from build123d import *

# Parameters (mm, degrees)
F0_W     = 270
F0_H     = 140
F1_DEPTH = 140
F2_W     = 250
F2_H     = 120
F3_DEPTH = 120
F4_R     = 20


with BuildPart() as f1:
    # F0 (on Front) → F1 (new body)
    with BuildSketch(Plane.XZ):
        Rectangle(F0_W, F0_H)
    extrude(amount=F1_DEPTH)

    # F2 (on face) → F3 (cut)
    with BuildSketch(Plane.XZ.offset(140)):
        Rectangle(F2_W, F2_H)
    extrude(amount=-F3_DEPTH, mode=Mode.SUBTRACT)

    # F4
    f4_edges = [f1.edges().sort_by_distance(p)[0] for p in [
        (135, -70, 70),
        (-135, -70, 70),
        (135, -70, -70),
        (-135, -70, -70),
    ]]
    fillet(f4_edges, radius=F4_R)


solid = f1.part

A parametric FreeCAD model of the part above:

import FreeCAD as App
import Part
import Sketcher

V = App.Vector


def edges_at(feature, points):
    """Names of the edges that pass closest to the given points."""
    edges = feature.Shape.Edges
    near = lambda p: min(range(len(edges)), key=lambda i: edges[i].distToShape(Part.Vertex(*p))[0])
    return sorted({f"Edge{near(p) + 1}" for p in points})

doc = App.newDocument("Part")
params = doc.addObject("Spreadsheet::Sheet", "Params")
for row, (alias, value) in enumerate([
    ("sketch1_width", "270 mm"),
    ("sketch1_height", "140 mm"),
    ("pad1_length", "140 mm"),
    ("sketch2_width", "250 mm"),
    ("sketch2_height", "120 mm"),
    ("pocket1_length", "120 mm"),
    ("fillet_radius", "20 mm"),
], start=1):
    params.set(f"A{row}", alias)
    params.set(f"B{row}", "=" + value)
    params.setAlias(f"B{row}", alias)

body = doc.addObject("PartDesign::Body", "Body")

# Sketch on XZ plane
sketch1 = doc.addObject("Sketcher::SketchObject", "Sketch")
body.addObject(sketch1)
sketch1.AttachmentSupport = (doc.XZ_Plane, [""])
sketch1.MapMode = "FlatFace"
sketch1.addGeometry(Part.LineSegment(V(-135, 70, 0), V(-135, -70, 0)), False)
sketch1.addGeometry(Part.LineSegment(V(-135, -70, 0), V(135, -70, 0)), False)
sketch1.addGeometry(Part.LineSegment(V(135, -70, 0), V(135, 70, 0)), False)
sketch1.addGeometry(Part.LineSegment(V(135, 70, 0), V(-135, 70, 0)), False)
sketch1.addConstraint(Sketcher.Constraint("Coincident", 0, 2, 1, 1))
sketch1.addConstraint(Sketcher.Constraint("Coincident", 1, 2, 2, 1))
sketch1.addConstraint(Sketcher.Constraint("Coincident", 2, 2, 3, 1))
sketch1.addConstraint(Sketcher.Constraint("Coincident", 3, 2, 0, 1))
sketch1.addConstraint(Sketcher.Constraint("Vertical", 0))
sketch1.addConstraint(Sketcher.Constraint("Horizontal", 1))
sketch1.addConstraint(Sketcher.Constraint("Vertical", 2))
sketch1.addConstraint(Sketcher.Constraint("Horizontal", 3))
sketch1.addConstraint(Sketcher.Constraint("Symmetric", 0, 2, 2, 2, -1, 1))
sketch1.addConstraint(Sketcher.Constraint("DistanceX", 1, 1, 1, 2, 270.0))
sketch1.addConstraint(Sketcher.Constraint("DistanceY", 0, 2, 0, 1, 140.0))
sketch1.setExpression("Constraints[9]", "Params.sketch1_width")
sketch1.setExpression("Constraints[10]", "Params.sketch1_height")
pad1 = doc.addObject("PartDesign::Pad", "Pad")
body.addObject(pad1)
pad1.Profile = sketch1
pad1.setExpression("Length", "Params.pad1_length")

# Sketch on XZ plane
sketch2 = doc.addObject("Sketcher::SketchObject", "Sketch001")
body.addObject(sketch2)
sketch2.AttachmentSupport = (doc.XZ_Plane, [""])
sketch2.MapMode = "FlatFace"
sketch2.AttachmentOffset = App.Placement(V(0, 0, 140), App.Rotation())
sketch2.addGeometry(Part.LineSegment(V(-125, 60, 0), V(-125, -60, 0)), False)
sketch2.addGeometry(Part.LineSegment(V(-125, -60, 0), V(125, -60, 0)), False)
sketch2.addGeometry(Part.LineSegment(V(125, -60, 0), V(125, 60, 0)), False)
sketch2.addGeometry(Part.LineSegment(V(125, 60, 0), V(-125, 60, 0)), False)
sketch2.addConstraint(Sketcher.Constraint("Coincident", 0, 2, 1, 1))
sketch2.addConstraint(Sketcher.Constraint("Coincident", 1, 2, 2, 1))
sketch2.addConstraint(Sketcher.Constraint("Coincident", 2, 2, 3, 1))
sketch2.addConstraint(Sketcher.Constraint("Coincident", 3, 2, 0, 1))
sketch2.addConstraint(Sketcher.Constraint("Vertical", 0))
sketch2.addConstraint(Sketcher.Constraint("Horizontal", 1))
sketch2.addConstraint(Sketcher.Constraint("Vertical", 2))
sketch2.addConstraint(Sketcher.Constraint("Horizontal", 3))
sketch2.addConstraint(Sketcher.Constraint("Symmetric", 0, 2, 2, 2, -1, 1))
sketch2.addConstraint(Sketcher.Constraint("DistanceX", 1, 1, 1, 2, 250.0))
sketch2.addConstraint(Sketcher.Constraint("DistanceY", 0, 2, 0, 1, 120.0))
sketch2.setExpression("Constraints[9]", "Params.sketch2_width")
sketch2.setExpression("Constraints[10]", "Params.sketch2_height")
pocket1 = doc.addObject("PartDesign::Pocket", "Pocket")
body.addObject(pocket1)
pocket1.Profile = sketch2
pocket1.setExpression("Length", "Params.pocket1_length")
doc.recompute()

fillet = doc.addObject("PartDesign::Fillet", "Fillet")
body.addObject(fillet)
fillet.Base = (pocket1, edges_at(pocket1, [
    (135, -70, 70),
    (-135, -70, 70),
    (135, -70, -70),
    (-135, -70, -70),
]))
fillet.setExpression("Radius", "Params.fillet_radius")

doc.recompute()
